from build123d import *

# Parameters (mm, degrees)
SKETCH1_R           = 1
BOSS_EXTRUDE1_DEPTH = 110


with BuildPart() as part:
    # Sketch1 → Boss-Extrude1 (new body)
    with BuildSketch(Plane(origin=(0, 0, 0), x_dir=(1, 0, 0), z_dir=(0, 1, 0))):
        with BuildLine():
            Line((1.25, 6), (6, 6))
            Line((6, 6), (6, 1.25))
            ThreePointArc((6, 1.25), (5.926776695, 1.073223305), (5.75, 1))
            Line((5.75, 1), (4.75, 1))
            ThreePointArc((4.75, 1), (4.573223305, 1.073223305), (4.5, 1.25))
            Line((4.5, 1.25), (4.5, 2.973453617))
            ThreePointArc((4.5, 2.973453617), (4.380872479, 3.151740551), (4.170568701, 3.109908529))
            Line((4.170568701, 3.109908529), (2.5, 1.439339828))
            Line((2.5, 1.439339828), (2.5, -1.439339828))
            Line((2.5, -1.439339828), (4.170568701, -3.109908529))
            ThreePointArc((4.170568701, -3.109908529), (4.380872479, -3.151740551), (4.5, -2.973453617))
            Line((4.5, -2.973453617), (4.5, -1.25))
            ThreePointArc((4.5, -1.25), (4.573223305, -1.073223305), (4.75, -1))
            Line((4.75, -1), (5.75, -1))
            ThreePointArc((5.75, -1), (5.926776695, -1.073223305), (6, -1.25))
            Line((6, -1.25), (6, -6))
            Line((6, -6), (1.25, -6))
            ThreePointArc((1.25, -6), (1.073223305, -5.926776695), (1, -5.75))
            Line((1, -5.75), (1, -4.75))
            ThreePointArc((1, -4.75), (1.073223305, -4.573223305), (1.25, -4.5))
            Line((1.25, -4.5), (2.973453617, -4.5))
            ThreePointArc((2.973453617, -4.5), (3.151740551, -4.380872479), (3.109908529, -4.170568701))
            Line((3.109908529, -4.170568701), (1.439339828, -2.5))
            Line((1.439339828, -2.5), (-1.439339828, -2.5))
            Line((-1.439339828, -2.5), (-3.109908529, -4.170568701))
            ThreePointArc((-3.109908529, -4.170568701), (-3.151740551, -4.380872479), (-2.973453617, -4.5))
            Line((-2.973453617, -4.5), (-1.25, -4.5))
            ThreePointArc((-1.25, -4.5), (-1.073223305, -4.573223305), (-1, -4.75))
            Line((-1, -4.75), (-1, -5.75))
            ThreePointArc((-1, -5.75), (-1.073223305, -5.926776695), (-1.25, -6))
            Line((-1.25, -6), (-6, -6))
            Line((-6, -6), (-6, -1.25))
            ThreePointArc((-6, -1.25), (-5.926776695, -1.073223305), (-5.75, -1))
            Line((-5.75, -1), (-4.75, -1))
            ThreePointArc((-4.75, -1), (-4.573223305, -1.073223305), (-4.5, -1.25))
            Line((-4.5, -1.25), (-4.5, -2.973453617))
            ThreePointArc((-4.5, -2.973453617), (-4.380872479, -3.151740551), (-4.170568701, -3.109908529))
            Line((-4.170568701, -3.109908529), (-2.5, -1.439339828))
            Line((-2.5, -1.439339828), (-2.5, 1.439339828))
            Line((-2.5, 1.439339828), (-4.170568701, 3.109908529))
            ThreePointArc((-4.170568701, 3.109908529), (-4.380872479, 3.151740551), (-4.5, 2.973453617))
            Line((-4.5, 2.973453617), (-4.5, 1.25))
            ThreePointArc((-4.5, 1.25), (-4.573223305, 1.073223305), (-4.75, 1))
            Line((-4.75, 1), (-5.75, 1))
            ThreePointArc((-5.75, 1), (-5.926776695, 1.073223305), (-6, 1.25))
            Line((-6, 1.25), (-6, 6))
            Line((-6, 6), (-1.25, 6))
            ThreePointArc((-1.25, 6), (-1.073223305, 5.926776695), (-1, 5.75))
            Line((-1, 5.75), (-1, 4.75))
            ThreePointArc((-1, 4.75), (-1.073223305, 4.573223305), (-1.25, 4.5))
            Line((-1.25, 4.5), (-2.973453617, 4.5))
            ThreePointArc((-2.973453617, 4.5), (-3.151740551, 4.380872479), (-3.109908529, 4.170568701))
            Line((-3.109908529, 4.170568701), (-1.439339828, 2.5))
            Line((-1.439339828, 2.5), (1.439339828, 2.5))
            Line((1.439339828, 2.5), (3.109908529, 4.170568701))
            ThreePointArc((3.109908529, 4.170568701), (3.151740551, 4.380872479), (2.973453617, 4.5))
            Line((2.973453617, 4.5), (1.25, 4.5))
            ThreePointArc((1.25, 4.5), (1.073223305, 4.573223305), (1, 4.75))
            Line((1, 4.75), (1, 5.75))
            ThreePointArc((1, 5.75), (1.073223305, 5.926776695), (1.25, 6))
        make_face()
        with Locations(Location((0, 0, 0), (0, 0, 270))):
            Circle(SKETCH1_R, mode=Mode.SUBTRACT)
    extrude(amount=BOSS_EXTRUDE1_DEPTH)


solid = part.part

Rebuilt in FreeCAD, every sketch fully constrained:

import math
import FreeCAD as App
import Part
import Sketcher

doc = App.newDocument("Part")
params = doc.addObject("Spreadsheet::Sheet", "Params")
for row, (alias, value) in enumerate([
    ("sketch1_diameter", "2 mm"),
    ("sketch1_width", "1 mm"),
    ("sketch1_radius", "0.25 mm"),
    ("pad1_length", "110 mm"),
], start=1):
    params.set(f"A{row}", alias)
    params.set(f"B{row}", "=" + value)
    params.setAlias(f"B{row}", alias)

body = doc.addObject("PartDesign::Body", "Body")

# Sketch on XZ plane
sketch1 = body.newObject("Sketcher::SketchObject", "Sketch")
sketch1.AttachmentSupport = (doc.getObject("XZ_Plane"), [""])
sketch1.MapMode = "FlatFace"
sketch1.addGeometry([
    Part.LineSegment(App.Vector(6, -6, 0), App.Vector(1.25, -6, 0)),  # 0
    Part.ArcOfCircle(Part.Circle(App.Vector(1.25, -5.75, 0), App.Vector(0, 0, 1), 0.25), math.radians(-180), math.radians(-90)),  # 1
    Part.LineSegment(App.Vector(1, -5.75, 0), App.Vector(1, -4.75, 0)),  # 2
    Part.ArcOfCircle(Part.Circle(App.Vector(1.25, -4.75, 0), App.Vector(0, 0, 1), 0.25), math.radians(90), math.radians(180)),  # 3
    Part.LineSegment(App.Vector(1.25, -4.5, 0), App.Vector(2.97, -4.5, 0)),  # 4
    Part.ArcOfCircle(Part.Circle(App.Vector(2.97, -4.31, 0), App.Vector(0, 0, 1), 0.19), math.radians(-90), math.radians(45)),  # 5
    Part.LineSegment(App.Vector(3.11, -4.17, 0), App.Vector(1.44, -2.5, 0)),  # 6
    Part.LineSegment(App.Vector(1.44, -2.5, 0), App.Vector(-1.44, -2.5, 0)),  # 7
    Part.LineSegment(App.Vector(-1.44, -2.5, 0), App.Vector(-3.11, -4.17, 0)),  # 8
    Part.ArcOfCircle(Part.Circle(App.Vector(-2.97, -4.31, 0), App.Vector(0, 0, 1), 0.19), math.radians(135), math.radians(270)),  # 9
    Part.LineSegment(App.Vector(-2.97, -4.5, 0), App.Vector(-1.25, -4.5, 0)),  # 10
    Part.ArcOfCircle(Part.Circle(App.Vector(-1.25, -4.75, 0), App.Vector(0, 0, 1), 0.25), math.radians(0), math.radians(90)),  # 11
    Part.LineSegment(App.Vector(-1, -4.75, 0), App.Vector(-1, -5.75, 0)),  # 12
    Part.ArcOfCircle(Part.Circle(App.Vector(-1.25, -5.75, 0), App.Vector(0, 0, 1), 0.25), math.radians(-90), math.radians(0)),  # 13
    Part.LineSegment(App.Vector(-1.25, -6, 0), App.Vector(-6, -6, 0)),  # 14
    Part.LineSegment(App.Vector(-6, -6, 0), App.Vector(-6, -1.25, 0)),  # 15
    Part.ArcOfCircle(Part.Circle(App.Vector(-5.75, -1.25, 0), App.Vector(0, 0, 1), 0.25), math.radians(90), math.radians(180)),  # 16
    Part.LineSegment(App.Vector(-5.75, -1, 0), App.Vector(-4.75, -1, 0)),  # 17
    Part.ArcOfCircle(Part.Circle(App.Vector(-4.75, -1.25, 0), App.Vector(0, 0, 1), 0.25), math.radians(0), math.radians(90)),  # 18
    Part.LineSegment(App.Vector(-4.5, -1.25, 0), App.Vector(-4.5, -2.97, 0)),  # 19
    Part.ArcOfCircle(Part.Circle(App.Vector(-4.31, -2.97, 0), App.Vector(0, 0, 1), 0.19), math.radians(180), math.radians(315)),  # 20
    Part.LineSegment(App.Vector(-4.17, -3.11, 0), App.Vector(-2.5, -1.44, 0)),  # 21
    Part.LineSegment(App.Vector(-2.5, -1.44, 0), App.Vector(-2.5, 1.44, 0)),  # 22
    Part.LineSegment(App.Vector(-2.5, 1.44, 0), App.Vector(-4.17, 3.11, 0)),  # 23
    Part.ArcOfCircle(Part.Circle(App.Vector(-4.31, 2.97, 0), App.Vector(0, 0, 1), 0.19), math.radians(45), math.radians(180)),  # 24
    Part.LineSegment(App.Vector(-4.5, 2.97, 0), App.Vector(-4.5, 1.25, 0)),  # 25
    Part.ArcOfCircle(Part.Circle(App.Vector(-4.75, 1.25, 0), App.Vector(0, 0, 1), 0.25), math.radians(-90), math.radians(0)),  # 26
    Part.LineSegment(App.Vector(-4.75, 1, 0), App.Vector(-5.75, 1, 0)),  # 27
    Part.ArcOfCircle(Part.Circle(App.Vector(-5.75, 1.25, 0), App.Vector(0, 0, 1), 0.25), math.radians(-180), math.radians(-90)),  # 28
    Part.LineSegment(App.Vector(-6, 1.25, 0), App.Vector(-6, 6, 0)),  # 29
    Part.LineSegment(App.Vector(-6, 6, 0), App.Vector(-1.25, 6, 0)),  # 30
    Part.ArcOfCircle(Part.Circle(App.Vector(-1.25, 5.75, 0), App.Vector(0, 0, 1), 0.25), math.radians(0), math.radians(90)),  # 31
    Part.LineSegment(App.Vector(-1, 5.75, 0), App.Vector(-1, 4.75, 0)),  # 32
    Part.ArcOfCircle(Part.Circle(App.Vector(-1.25, 4.75, 0), App.Vector(0, 0, 1), 0.25), math.radians(-90), math.radians(0)),  # 33
    Part.LineSegment(App.Vector(-1.25, 4.5, 0), App.Vector(-2.97, 4.5, 0)),  # 34
    Part.ArcOfCircle(Part.Circle(App.Vector(-2.97, 4.31, 0), App.Vector(0, 0, 1), 0.19), math.radians(90), math.radians(225)),  # 35
    Part.LineSegment(App.Vector(-3.11, 4.17, 0), App.Vector(-1.44, 2.5, 0)),  # 36
    Part.LineSegment(App.Vector(-1.44, 2.5, 0), App.Vector(1.44, 2.5, 0)),  # 37
    Part.LineSegment(App.Vector(1.44, 2.5, 0), App.Vector(3.11, 4.17, 0)),  # 38
    Part.ArcOfCircle(Part.Circle(App.Vector(2.97, 4.31, 0), App.Vector(0, 0, 1), 0.19), math.radians(-45), math.radians(90)),  # 39
    Part.LineSegment(App.Vector(2.97, 4.5, 0), App.Vector(1.25, 4.5, 0)),  # 40
    Part.ArcOfCircle(Part.Circle(App.Vector(1.25, 4.75, 0), App.Vector(0, 0, 1), 0.25), math.radians(-180), math.radians(-90)),  # 41
    Part.LineSegment(App.Vector(1, 4.75, 0), App.Vector(1, 5.75, 0)),  # 42
    Part.ArcOfCircle(Part.Circle(App.Vector(1.25, 5.75, 0), App.Vector(0, 0, 1), 0.25), math.radians(90), math.radians(180)),  # 43
    Part.LineSegment(App.Vector(1.25, 6, 0), App.Vector(6, 6, 0)),  # 44
    Part.LineSegment(App.Vector(6, 6, 0), App.Vector(6, 1.25, 0)),  # 45
    Part.ArcOfCircle(Part.Circle(App.Vector(5.75, 1.25, 0), App.Vector(0, 0, 1), 0.25), math.radians(-90), math.radians(0)),  # 46
    Part.LineSegment(App.Vector(5.75, 1, 0), App.Vector(4.75, 1, 0)),  # 47
    Part.ArcOfCircle(Part.Circle(App.Vector(4.75, 1.25, 0), App.Vector(0, 0, 1), 0.25), math.radians(-180), math.radians(-90)),  # 48
    Part.LineSegment(App.Vector(4.5, 1.25, 0), App.Vector(4.5, 2.97, 0)),  # 49
    Part.ArcOfCircle(Part.Circle(App.Vector(4.31, 2.97, 0), App.Vector(0, 0, 1), 0.19), math.radians(0), math.radians(135)),  # 50
    Part.LineSegment(App.Vector(4.17, 3.11, 0), App.Vector(2.5, 1.44, 0)),  # 51
    Part.LineSegment(App.Vector(2.5, 1.44, 0), App.Vector(2.5, -1.44, 0)),  # 52
    Part.LineSegment(App.Vector(2.5, -1.44, 0), App.Vector(4.17, -3.11, 0)),  # 53
    Part.ArcOfCircle(Part.Circle(App.Vector(4.31, -2.97, 0), App.Vector(0, 0, 1), 0.19), math.radians(-135), math.radians(0)),  # 54
    Part.LineSegment(App.Vector(4.5, -2.97, 0), App.Vector(4.5, -1.25, 0)),  # 55
    Part.ArcOfCircle(Part.Circle(App.Vector(4.75, -1.25, 0), App.Vector(0, 0, 1), 0.25), math.radians(90), math.radians(180)),  # 56
    Part.LineSegment(App.Vector(4.75, -1, 0), App.Vector(5.75, -1, 0)),  # 57
    Part.ArcOfCircle(Part.Circle(App.Vector(5.75, -1.25, 0), App.Vector(0, 0, 1), 0.25), math.radians(0), math.radians(90)),  # 58
    Part.LineSegment(App.Vector(6, -1.25, 0), App.Vector(6, -6, 0)),  # 59
    Part.Circle(App.Vector(0, 0, 0), App.Vector(0, 0, 1), 1),  # 60
], False)
sketch1.addConstraint([
    Sketcher.Constraint("Tangent", 0, 2, 1, 2),
    Sketcher.Constraint("Tangent", 1, 1, 2, 1),
    Sketcher.Constraint("Tangent", 2, 2, 3, 2),
    Sketcher.Constraint("Tangent", 3, 1, 4, 1),
    Sketcher.Constraint("Tangent", 4, 2, 5, 1),
    Sketcher.Constraint("Tangent", 5, 2, 6, 1),
    Sketcher.Constraint("Coincident", 6, 2, 7, 1),
    Sketcher.Constraint("Coincident", 7, 2, 8, 1),
    Sketcher.Constraint("Tangent", 8, 2, 9, 1),
    Sketcher.Constraint("Tangent", 9, 2, 10, 1),
    Sketcher.Constraint("Tangent", 10, 2, 11, 2),
    Sketcher.Constraint("Tangent", 11, 1, 12, 1),
    Sketcher.Constraint("Tangent", 12, 2, 13, 2),
    Sketcher.Constraint("Tangent", 13, 1, 14, 1),
    Sketcher.Constraint("Coincident", 14, 2, 15, 1),
    Sketcher.Constraint("Tangent", 15, 2, 16, 2),
    Sketcher.Constraint("Tangent", 16, 1, 17, 1),
    Sketcher.Constraint("Tangent", 17, 2, 18, 2),
    Sketcher.Constraint("Tangent", 18, 1, 19, 1),
    Sketcher.Constraint("Tangent", 19, 2, 20, 1),
    Sketcher.Constraint("Tangent", 20, 2, 21, 1),
    Sketcher.Constraint("Coincident", 21, 2, 22, 1),
    Sketcher.Constraint("Coincident", 22, 2, 23, 1),
    Sketcher.Constraint("Tangent", 23, 2, 24, 1),
    Sketcher.Constraint("Tangent", 24, 2, 25, 1),
    Sketcher.Constraint("Tangent", 25, 2, 26, 2),
    Sketcher.Constraint("Tangent", 26, 1, 27, 1),
    Sketcher.Constraint("Tangent", 27, 2, 28, 2),
    Sketcher.Constraint("Tangent", 28, 1, 29, 1),
    Sketcher.Constraint("Coincident", 29, 2, 30, 1),
    Sketcher.Constraint("Tangent", 30, 2, 31, 2),
    Sketcher.Constraint("Tangent", 31, 1, 32, 1),
    Sketcher.Constraint("Tangent", 32, 2, 33, 2),
    Sketcher.Constraint("Tangent", 33, 1, 34, 1),
    Sketcher.Constraint("Tangent", 34, 2, 35, 1),
    Sketcher.Constraint("Tangent", 35, 2, 36, 1),
    Sketcher.Constraint("Coincident", 36, 2, 37, 1),
    Sketcher.Constraint("Coincident", 37, 2, 38, 1),
    Sketcher.Constraint("Tangent", 38, 2, 39, 1),
    Sketcher.Constraint("Tangent", 39, 2, 40, 1),
    Sketcher.Constraint("Tangent", 40, 2, 41, 2),
    Sketcher.Constraint("Tangent", 41, 1, 42, 1),
    Sketcher.Constraint("Tangent", 42, 2, 43, 2),
    Sketcher.Constraint("Tangent", 43, 1, 44, 1),
    Sketcher.Constraint("Coincident", 44, 2, 45, 1),
    Sketcher.Constraint("Tangent", 45, 2, 46, 2),
    Sketcher.Constraint("Tangent", 46, 1, 47, 1),
    Sketcher.Constraint("Tangent", 47, 2, 48, 2),
    Sketcher.Constraint("Tangent", 48, 1, 49, 1),
    Sketcher.Constraint("Tangent", 49, 2, 50, 1),
    Sketcher.Constraint("Tangent", 50, 2, 51, 1),
    Sketcher.Constraint("Coincident", 51, 2, 52, 1),
    Sketcher.Constraint("Coincident", 52, 2, 53, 1),
    Sketcher.Constraint("Tangent", 53, 2, 54, 1),
    Sketcher.Constraint("Tangent", 54, 2, 55, 1),
    Sketcher.Constraint("Tangent", 55, 2, 56, 2),
    Sketcher.Constraint("Tangent", 56, 1, 57, 1),
    Sketcher.Constraint("Tangent", 57, 2, 58, 2),
    Sketcher.Constraint("Tangent", 58, 1, 59, 1),
    Sketcher.Constraint("Coincident", 59, 2, 0, 1),
    Sketcher.Constraint("Horizontal", 0),
    Sketcher.Constraint("Vertical", 2),
    Sketcher.Constraint("Horizontal", 4),
    Sketcher.Constraint("Horizontal", 7),
    Sketcher.Constraint("Horizontal", 10),
    Sketcher.Constraint("Vertical", 12),
    Sketcher.Constraint("Horizontal", 14),
    Sketcher.Constraint("Vertical", 15),
    Sketcher.Constraint("Horizontal", 17),
    Sketcher.Constraint("Vertical", 19),
    Sketcher.Constraint("Vertical", 22),
    Sketcher.Constraint("Vertical", 25),
    Sketcher.Constraint("Horizontal", 27),
    Sketcher.Constraint("Vertical", 29),
    Sketcher.Constraint("Horizontal", 30),
    Sketcher.Constraint("Vertical", 32),
    Sketcher.Constraint("Horizontal", 34),
    Sketcher.Constraint("Horizontal", 37),
    Sketcher.Constraint("Horizontal", 40),
    Sketcher.Constraint("Vertical", 42),
    Sketcher.Constraint("Horizontal", 44),
    Sketcher.Constraint("Vertical", 45),
    Sketcher.Constraint("Horizontal", 47),
    Sketcher.Constraint("Vertical", 49),
    Sketcher.Constraint("Vertical", 52),
    Sketcher.Constraint("Vertical", 55),
    Sketcher.Constraint("Horizontal", 57),
    Sketcher.Constraint("Vertical", 59),
    Sketcher.Constraint("Coincident", 60, 3, -1, 1),
    Sketcher.Constraint("Equal", 1, 3),
    Sketcher.Constraint("Equal", 5, 9),
    Sketcher.Constraint("Equal", 3, 11),
    Sketcher.Constraint("Equal", 11, 13),
    Sketcher.Constraint("Equal", 13, 16),
    Sketcher.Constraint("Equal", 16, 18),
    Sketcher.Constraint("Equal", 9, 20),
    Sketcher.Constraint("Equal", 20, 24),
    Sketcher.Constraint("Equal", 18, 26),
    Sketcher.Constraint("Equal", 26, 28),
    Sketcher.Constraint("Equal", 28, 31),
    Sketcher.Constraint("Equal", 31, 33),
    Sketcher.Constraint("Equal", 24, 35),
    Sketcher.Constraint("Equal", 35, 39),
    Sketcher.Constraint("Equal", 33, 41),
    Sketcher.Constraint("Equal", 41, 43),
    Sketcher.Constraint("Equal", 43, 46),
    Sketcher.Constraint("Equal", 46, 48),
    Sketcher.Constraint("Equal", 39, 50),
    Sketcher.Constraint("Equal", 50, 54),
    Sketcher.Constraint("Equal", 48, 56),
    Sketcher.Constraint("Equal", 56, 58),
    Sketcher.Constraint("Symmetric", 1, 3, 31, 3, -1, 1),
    Sketcher.Constraint("Symmetric", 5, 3, 35, 3, -1, 1),
    Sketcher.Constraint("Symmetric", 9, 3, 39, 3, -1, 1),
    Sketcher.Constraint("Symmetric", 13, 3, 43, 3, -1, 1),
    Sketcher.Constraint("Symmetric", 16, 3, 46, 3, -1, 1),
    Sketcher.Constraint("Symmetric", 20, 3, 50, 3, -1, 1),
    Sketcher.Constraint("Symmetric", 24, 3, 54, 3, -1, 1),
    Sketcher.Constraint("Symmetric", 28, 3, 58, 3, -1, 1),
    Sketcher.Constraint("Symmetric", 6, 2, 36, 2, -1, 1),
    Sketcher.Constraint("Symmetric", 21, 2, 51, 2, -1, 1),
    Sketcher.Constraint("Symmetric", 5, 3, 9, 3, -2),
    Sketcher.Constraint("Symmetric", 1, 3, 13, 3, -2),
    Sketcher.Constraint("Symmetric", 28, 3, 46, 3, -2),
    Sketcher.Constraint("Symmetric", 24, 3, 50, 3, -2),
    Sketcher.Constraint("Perpendicular", 6, 8),
    Sketcher.Constraint("Parallel", 8, 21),
    Sketcher.Constraint("Perpendicular", 21, 23),
    Sketcher.Constraint("Perpendicular", 36, 38),
    Sketcher.Constraint("Perpendicular", 51, 53),
    Sketcher.Constraint("Horizontal", 5, 2, 8, 2),
    Sketcher.Constraint("Equal", 57, 2),
    Sketcher.Constraint("Equal", 44, 15),
    Sketcher.Constraint("Equal", 40, 19),
    Sketcher.Constraint("Equal", 37, 22),
    Sketcher.Constraint("Equal", 8, 21),
    Sketcher.Constraint("Diameter", 60, 2.0),
    Sketcher.Constraint("DistanceX", 17, 1, 17, 2, 1.0),
    Sketcher.Constraint("Radius", 1, 0.25),
    Sketcher.Constraint("DistanceY", 0, 2, -1, 1, 6.0),
    Sketcher.Constraint("DistanceX", -1, 1, 1, 1, 1.0),
    Sketcher.Constraint("DistanceY", 6, 2, -1, 1, 2.5),
    Sketcher.Constraint("Radius", 5, 0.192976),
    Sketcher.Constraint("DistanceX", 7, 2, 7, 1, 2.87868),
])
sketch1.setExpression("Constraints[136]", "Params.sketch1_diameter")
sketch1.setExpression("Constraints[137]", "Params.sketch1_width")
sketch1.setExpression("Constraints[138]", "Params.sketch1_radius")
pad1 = body.newObject("PartDesign::Pad", "Pad")
pad1.Profile = sketch1
pad1.setExpression("Length", "Params.pad1_length")
pad1.Reversed = True

doc.recompute()
